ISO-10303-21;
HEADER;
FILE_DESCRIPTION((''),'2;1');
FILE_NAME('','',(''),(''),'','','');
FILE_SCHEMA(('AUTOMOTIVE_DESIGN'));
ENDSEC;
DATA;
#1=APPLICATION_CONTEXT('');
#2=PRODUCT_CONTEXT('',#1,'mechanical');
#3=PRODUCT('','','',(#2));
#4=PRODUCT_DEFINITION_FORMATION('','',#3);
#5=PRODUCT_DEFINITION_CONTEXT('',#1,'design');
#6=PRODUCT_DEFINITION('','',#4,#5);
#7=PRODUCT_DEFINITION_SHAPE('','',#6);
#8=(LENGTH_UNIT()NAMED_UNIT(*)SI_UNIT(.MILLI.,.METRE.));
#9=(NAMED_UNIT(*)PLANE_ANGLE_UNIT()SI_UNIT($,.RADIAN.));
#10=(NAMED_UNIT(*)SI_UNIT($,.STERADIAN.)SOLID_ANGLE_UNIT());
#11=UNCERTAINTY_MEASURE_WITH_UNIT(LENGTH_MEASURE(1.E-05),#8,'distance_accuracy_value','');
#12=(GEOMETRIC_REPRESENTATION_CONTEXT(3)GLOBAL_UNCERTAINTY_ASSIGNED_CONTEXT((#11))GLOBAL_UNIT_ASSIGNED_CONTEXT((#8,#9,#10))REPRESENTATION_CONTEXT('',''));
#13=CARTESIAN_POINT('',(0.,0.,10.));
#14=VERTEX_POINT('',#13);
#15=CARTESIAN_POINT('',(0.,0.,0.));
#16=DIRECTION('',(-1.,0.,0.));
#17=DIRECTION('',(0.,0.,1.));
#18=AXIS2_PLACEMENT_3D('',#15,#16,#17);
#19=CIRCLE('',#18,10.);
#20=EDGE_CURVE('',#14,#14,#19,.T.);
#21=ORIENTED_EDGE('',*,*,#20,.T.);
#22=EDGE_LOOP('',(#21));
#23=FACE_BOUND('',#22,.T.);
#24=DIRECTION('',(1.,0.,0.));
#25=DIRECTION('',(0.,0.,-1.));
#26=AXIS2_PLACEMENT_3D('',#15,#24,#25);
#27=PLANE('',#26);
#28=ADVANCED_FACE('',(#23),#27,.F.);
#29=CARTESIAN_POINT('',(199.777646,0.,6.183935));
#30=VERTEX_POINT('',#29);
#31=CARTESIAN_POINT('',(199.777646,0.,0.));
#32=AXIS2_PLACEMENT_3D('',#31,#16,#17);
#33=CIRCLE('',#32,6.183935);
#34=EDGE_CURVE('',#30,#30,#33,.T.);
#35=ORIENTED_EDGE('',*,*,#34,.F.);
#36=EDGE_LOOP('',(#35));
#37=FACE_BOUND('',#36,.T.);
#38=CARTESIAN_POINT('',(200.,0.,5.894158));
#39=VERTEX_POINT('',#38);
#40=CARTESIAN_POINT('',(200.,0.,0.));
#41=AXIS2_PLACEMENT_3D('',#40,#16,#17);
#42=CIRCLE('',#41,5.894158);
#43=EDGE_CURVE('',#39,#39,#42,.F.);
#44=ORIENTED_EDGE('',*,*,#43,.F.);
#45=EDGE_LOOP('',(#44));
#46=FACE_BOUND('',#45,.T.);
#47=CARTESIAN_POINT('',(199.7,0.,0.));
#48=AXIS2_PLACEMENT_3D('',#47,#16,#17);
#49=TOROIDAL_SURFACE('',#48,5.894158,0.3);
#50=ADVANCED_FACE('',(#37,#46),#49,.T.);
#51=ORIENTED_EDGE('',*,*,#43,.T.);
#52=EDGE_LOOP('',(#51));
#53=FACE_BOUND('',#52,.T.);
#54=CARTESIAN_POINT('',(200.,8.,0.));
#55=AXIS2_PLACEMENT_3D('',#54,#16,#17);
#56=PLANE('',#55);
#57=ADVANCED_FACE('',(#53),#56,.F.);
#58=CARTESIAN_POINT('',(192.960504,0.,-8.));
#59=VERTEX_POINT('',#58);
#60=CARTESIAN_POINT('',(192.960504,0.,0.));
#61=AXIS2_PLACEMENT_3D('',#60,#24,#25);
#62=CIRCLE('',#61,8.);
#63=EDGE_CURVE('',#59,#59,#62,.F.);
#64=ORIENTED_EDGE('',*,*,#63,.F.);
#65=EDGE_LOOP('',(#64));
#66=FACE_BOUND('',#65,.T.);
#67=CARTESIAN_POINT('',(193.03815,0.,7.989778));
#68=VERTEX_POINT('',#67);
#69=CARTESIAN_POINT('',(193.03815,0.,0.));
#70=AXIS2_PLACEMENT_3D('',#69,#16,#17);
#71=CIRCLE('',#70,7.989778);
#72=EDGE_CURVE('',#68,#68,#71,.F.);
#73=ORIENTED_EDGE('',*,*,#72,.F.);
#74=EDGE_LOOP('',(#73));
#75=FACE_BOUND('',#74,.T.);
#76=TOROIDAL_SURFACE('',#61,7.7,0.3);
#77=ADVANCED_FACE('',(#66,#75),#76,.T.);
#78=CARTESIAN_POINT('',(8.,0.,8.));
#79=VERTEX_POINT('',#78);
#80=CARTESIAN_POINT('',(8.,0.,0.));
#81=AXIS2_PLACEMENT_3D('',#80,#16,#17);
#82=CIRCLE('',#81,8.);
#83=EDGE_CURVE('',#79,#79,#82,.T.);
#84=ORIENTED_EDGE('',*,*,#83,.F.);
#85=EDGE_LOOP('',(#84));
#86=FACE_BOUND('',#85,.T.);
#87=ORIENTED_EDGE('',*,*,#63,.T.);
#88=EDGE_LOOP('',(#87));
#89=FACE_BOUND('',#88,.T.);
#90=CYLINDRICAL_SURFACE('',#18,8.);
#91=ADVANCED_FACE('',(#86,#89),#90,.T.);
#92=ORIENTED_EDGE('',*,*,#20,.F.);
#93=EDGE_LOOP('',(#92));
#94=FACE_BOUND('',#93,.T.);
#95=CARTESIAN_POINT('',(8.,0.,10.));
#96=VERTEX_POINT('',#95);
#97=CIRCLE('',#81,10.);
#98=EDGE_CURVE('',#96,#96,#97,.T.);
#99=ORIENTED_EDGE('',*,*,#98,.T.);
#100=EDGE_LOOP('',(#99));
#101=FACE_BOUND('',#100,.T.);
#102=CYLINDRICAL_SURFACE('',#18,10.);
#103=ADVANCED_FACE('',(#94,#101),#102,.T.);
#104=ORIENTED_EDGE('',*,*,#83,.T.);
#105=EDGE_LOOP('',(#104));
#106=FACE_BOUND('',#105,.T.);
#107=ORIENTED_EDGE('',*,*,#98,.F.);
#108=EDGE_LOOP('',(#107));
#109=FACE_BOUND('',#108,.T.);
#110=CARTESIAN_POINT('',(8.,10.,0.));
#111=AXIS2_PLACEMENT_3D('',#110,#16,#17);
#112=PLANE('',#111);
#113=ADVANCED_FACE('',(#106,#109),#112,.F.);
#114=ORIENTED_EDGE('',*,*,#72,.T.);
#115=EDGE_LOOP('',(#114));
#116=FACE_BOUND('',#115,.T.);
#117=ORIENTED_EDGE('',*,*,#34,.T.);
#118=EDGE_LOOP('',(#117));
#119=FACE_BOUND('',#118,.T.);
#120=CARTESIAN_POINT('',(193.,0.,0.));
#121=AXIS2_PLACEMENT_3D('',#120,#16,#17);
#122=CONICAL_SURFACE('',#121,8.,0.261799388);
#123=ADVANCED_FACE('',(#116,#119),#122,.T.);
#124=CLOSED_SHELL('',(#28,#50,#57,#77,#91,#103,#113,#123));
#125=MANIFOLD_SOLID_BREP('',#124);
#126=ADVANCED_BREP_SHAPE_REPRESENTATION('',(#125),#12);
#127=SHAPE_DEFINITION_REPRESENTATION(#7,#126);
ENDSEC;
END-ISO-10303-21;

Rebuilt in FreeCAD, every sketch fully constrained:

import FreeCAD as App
import Part
import Sketcher

V = App.Vector


def edges_at(feature, points):
    """Names of the edges that pass closest to the given points."""
    edges = feature.Shape.Edges
    near = lambda p: min(range(len(edges)), key=lambda i: edges[i].distToShape(Part.Vertex(*p))[0])
    return sorted({f"Edge{near(p) + 1}" for p in points})

doc = App.newDocument("Part")
body = doc.addObject("PartDesign::Body", "Body")

sketch1 = doc.addObject("Sketcher::SketchObject", "Sketch")
body.addObject(sketch1)
sketch1.AttachmentSupport = (doc.XY_Plane, [""])
sketch1.MapMode = "FlatFace"
sketch1.addGeometry([
    Part.LineSegment(V(0, 0, 0), V(200, 0, 0)),
    Part.LineSegment(V(200, 0, 0), V(200, 8, 0)),
    Part.LineSegment(V(200, 8, 0), V(8, 8, 0)),
    Part.LineSegment(V(8, 8, 0), V(8, 10, 0)),
    Part.LineSegment(V(8, 10, 0), V(0, 10, 0)),
    Part.LineSegment(V(0, 10, 0), V(0, 0, 0)),
], False)
sketch1.addConstraint([
    Sketcher.Constraint("Coincident", 0, 2, 1, 1),
    Sketcher.Constraint("Coincident", 1, 2, 2, 1),
    Sketcher.Constraint("Coincident", 2, 2, 3, 1),
    Sketcher.Constraint("Coincident", 3, 2, 4, 1),
    Sketcher.Constraint("Coincident", 4, 2, 5, 1),
    Sketcher.Constraint("Coincident", 5, 2, 0, 1),
    Sketcher.Constraint("Horizontal", 0),
    Sketcher.Constraint("Vertical", 1),
    Sketcher.Constraint("Horizontal", 2),
    Sketcher.Constraint("Vertical", 3),
    Sketcher.Constraint("Horizontal", 4),
    Sketcher.Constraint("Vertical", 5),
    Sketcher.Constraint("Coincident", 5, 2, -1, 1),
    Sketcher.Constraint("Equal", 4, 1),
    Sketcher.Constraint("DistanceX", 0, 1, 0, 2, 200.0),
    Sketcher.Constraint("DistanceX", 2, 2, 2, 1, 192.0),
    Sketcher.Constraint("DistanceY", 3, 1, 3, 2, 2.0),
])
revolution = doc.addObject("PartDesign::Revolution", "Revolution")
body.addObject(revolution)
revolution.Profile = sketch1
revolution.ReferenceAxis = (sketch1, ["H_Axis"])
revolution.Angle = 360
doc.recompute()

chamfer = doc.addObject("PartDesign::Chamfer", "Chamfer")
body.addObject(chamfer)
chamfer.Base = (revolution, edges_at(revolution, [(200, 0, -8)]))
chamfer.ChamferType = "Two distances"
chamfer.Size = 7
chamfer.Size2 = 1.875644
chamfer.FlipDirection = True
doc.recompute()

fillet = doc.addObject("PartDesign::Fillet", "Fillet")
body.addObject(fillet)
fillet.Base = (chamfer, edges_at(chamfer, [(193, 0, -8), (200, 0, -6.124)]))
fillet.Radius = 0.3

doc.recompute()
